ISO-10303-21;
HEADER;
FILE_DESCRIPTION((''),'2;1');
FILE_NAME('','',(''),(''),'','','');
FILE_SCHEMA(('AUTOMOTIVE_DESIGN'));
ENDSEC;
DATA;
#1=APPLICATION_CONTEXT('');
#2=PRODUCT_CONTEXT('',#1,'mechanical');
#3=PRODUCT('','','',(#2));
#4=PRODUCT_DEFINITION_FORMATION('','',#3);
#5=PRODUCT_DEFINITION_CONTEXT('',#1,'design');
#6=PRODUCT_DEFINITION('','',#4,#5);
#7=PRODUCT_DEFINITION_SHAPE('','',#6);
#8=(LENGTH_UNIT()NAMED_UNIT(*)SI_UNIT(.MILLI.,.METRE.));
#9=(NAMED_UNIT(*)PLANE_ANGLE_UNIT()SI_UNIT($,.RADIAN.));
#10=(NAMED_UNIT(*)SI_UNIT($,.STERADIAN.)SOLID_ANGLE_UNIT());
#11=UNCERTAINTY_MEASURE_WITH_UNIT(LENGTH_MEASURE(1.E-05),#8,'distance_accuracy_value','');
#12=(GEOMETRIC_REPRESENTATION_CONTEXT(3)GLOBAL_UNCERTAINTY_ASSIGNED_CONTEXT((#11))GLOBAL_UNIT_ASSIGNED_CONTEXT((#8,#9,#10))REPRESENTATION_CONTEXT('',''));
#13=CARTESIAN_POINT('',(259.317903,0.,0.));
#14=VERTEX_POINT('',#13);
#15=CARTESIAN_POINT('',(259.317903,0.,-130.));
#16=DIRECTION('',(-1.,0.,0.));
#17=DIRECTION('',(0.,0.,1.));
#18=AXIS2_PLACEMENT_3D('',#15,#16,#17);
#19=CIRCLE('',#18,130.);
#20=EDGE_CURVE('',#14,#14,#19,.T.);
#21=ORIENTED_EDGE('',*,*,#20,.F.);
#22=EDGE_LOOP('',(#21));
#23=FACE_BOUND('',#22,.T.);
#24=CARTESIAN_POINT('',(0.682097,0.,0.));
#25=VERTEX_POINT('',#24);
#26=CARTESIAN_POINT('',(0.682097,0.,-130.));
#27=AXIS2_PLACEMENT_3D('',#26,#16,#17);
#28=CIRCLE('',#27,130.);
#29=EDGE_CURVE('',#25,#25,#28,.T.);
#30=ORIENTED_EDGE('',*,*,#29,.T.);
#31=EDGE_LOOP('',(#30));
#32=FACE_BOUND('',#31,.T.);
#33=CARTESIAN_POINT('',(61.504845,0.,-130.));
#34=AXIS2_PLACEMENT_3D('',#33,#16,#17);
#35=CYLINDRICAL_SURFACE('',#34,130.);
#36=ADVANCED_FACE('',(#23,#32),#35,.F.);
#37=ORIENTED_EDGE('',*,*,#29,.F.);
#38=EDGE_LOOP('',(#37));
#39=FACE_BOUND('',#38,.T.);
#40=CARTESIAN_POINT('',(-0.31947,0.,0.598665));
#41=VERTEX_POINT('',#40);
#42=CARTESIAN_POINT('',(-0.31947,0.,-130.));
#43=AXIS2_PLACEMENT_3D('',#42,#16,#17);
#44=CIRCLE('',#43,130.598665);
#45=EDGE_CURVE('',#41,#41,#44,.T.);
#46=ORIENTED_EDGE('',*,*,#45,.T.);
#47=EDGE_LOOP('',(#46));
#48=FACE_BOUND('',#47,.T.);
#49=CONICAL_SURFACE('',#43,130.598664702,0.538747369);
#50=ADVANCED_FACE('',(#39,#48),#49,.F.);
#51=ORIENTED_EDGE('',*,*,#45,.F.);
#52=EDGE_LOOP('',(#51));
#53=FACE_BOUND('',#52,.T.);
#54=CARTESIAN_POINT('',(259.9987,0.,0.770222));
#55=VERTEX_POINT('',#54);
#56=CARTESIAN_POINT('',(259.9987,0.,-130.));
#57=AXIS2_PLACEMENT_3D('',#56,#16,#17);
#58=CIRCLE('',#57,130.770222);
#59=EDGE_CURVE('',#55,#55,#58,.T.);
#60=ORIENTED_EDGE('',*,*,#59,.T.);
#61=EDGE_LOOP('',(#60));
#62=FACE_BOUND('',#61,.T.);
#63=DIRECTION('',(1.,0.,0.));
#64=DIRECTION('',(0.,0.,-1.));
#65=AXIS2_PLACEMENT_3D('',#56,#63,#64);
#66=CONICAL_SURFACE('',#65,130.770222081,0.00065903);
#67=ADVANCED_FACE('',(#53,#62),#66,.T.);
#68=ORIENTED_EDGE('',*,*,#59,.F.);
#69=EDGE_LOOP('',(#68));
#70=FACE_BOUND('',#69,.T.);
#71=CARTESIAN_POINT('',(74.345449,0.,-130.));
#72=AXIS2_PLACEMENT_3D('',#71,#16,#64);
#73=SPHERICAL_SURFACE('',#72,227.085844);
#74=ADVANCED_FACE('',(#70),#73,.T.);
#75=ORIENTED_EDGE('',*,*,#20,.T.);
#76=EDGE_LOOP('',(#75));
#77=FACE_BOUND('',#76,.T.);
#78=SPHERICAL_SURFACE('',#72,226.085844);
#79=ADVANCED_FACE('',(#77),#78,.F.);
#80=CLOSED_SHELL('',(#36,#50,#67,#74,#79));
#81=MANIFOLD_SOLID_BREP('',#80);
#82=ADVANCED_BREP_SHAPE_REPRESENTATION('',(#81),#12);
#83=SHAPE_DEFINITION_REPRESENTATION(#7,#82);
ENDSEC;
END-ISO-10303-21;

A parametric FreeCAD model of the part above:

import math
import FreeCAD as App
import Part
import Sketcher

V = App.Vector

doc = App.newDocument("Part")
body = doc.addObject("PartDesign::Body", "Body")

sketch1 = body.newObject("Sketcher::SketchObject", "Sketch")
sketch1.AttachmentSupport = (doc.getObject("XZ_Plane"), [""])
sketch1.MapMode = "FlatFace"
sketch1.addGeometry(Part.LineSegment(V(-0.3, -260.6, 0), V(0.7, -260, 0)), False)
sketch1.addGeometry(Part.LineSegment(V(0.7, -260, 0), V(259.3, -260, 0)), False)
sketch1.addGeometry(Part.ArcOfCircle(Part.Circle(V(74.3, -130, 0), V(0, 0, 1), 226.1), math.radians(-35), math.radians(0)), False)
sketch1.addGeometry(Part.LineSegment(V(300.4, -130, 0), V(301.4, -130, 0)), False)
sketch1.addGeometry(Part.ArcOfCircle(Part.Circle(V(74.3, -130, 0), V(0, 0, 1), 227.1), math.radians(-35), math.radians(0)), False)
sketch1.addGeometry(Part.LineSegment(V(260, -260.8, 0), V(-0.3, -260.6, 0)), False)
sketch1.addGeometry(Part.LineSegment(V(-0.3, -130, 0), V(301.4, -130, 0)), True)
sketch1.addConstraint(Sketcher.Constraint("Coincident", 0, 2, 1, 1))
sketch1.addConstraint(Sketcher.Constraint("Coincident", 1, 2, 2, 1))
sketch1.addConstraint(Sketcher.Constraint("Coincident", 2, 2, 3, 1))
sketch1.addConstraint(Sketcher.Constraint("Coincident", 3, 2, 4, 2))
sketch1.addConstraint(Sketcher.Constraint("Coincident", 4, 1, 5, 1))
sketch1.addConstraint(Sketcher.Constraint("Coincident", 5, 2, 0, 1))
sketch1.addConstraint(Sketcher.Constraint("Horizontal", 1))
sketch1.addConstraint(Sketcher.Constraint("Horizontal", 3))
sketch1.addConstraint(Sketcher.Constraint("Horizontal", 6))
sketch1.addConstraint(Sketcher.Constraint("Coincident", 4, 3, 2, 3))
sketch1.addConstraint(Sketcher.Constraint("Coincident", 6, 2, 3, 2))
sketch1.addConstraint(Sketcher.Constraint("Horizontal", 4, 3, 2, 2))
sketch1.addConstraint(Sketcher.Constraint("Vertical", 5, 2, 6, 1))
sketch1.addConstraint(Sketcher.Constraint("DistanceX", 3, 1, 3, 2, 1.0))
sketch1.addConstraint(Sketcher.Constraint("DistanceY", 2, 3, -1, 1, 130.0))
sketch1.addConstraint(Sketcher.Constraint("DistanceY", 0, 2, -1, 1, 260.0))
sketch1.addConstraint(Sketcher.Constraint("Radius", 2, 226.085844))
sketch1.addConstraint(Sketcher.Constraint("DistanceX", -1, 1, 4, 1, 259.9987))
sketch1.addConstraint(Sketcher.Constraint("Distance", 0, 1.166849))
sketch1.addConstraint(Sketcher.Constraint("DistanceX", 1, 1, 1, 2, 258.635807))
sketch1.addConstraint(Sketcher.Constraint("DistanceX", 6, 1, 6, 2, 301.750763))
sketch1.addConstraint(Sketcher.Constraint("DistanceX", -1, 1, 2, 3, 74.345449))
revolution = body.newObject("PartDesign::Revolution", "Revolution")
revolution.Profile = sketch1
revolution.ReferenceAxis = (sketch1, ["Axis0"])
revolution.Angle = 360

doc.recompute()
